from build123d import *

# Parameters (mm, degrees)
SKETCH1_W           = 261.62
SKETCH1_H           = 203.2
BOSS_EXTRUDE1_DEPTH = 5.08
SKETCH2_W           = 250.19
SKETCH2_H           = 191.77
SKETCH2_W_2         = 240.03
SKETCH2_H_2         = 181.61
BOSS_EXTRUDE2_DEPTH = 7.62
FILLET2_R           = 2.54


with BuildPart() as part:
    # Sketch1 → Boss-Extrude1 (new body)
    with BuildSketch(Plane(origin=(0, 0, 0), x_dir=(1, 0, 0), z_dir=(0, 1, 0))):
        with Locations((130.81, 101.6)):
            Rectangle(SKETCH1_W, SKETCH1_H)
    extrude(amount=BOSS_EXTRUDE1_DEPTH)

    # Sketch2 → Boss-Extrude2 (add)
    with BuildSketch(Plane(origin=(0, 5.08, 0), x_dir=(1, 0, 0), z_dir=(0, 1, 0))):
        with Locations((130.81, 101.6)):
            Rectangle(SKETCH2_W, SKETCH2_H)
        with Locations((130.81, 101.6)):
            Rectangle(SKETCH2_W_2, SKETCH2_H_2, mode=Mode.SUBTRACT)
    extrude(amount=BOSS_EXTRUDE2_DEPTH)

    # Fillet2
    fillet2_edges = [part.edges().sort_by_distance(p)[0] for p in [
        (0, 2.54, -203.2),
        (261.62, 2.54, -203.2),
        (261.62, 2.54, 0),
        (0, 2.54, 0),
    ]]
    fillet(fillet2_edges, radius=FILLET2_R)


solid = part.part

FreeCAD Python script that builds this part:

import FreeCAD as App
import Part
import Sketcher
Q = App.Units.Quantity


def edges_at(feature, points):
    """Names of the edges that pass closest to the given points."""
    edges = feature.Shape.Edges
    near = lambda p: min(range(len(edges)), key=lambda i: edges[i].distToShape(Part.Vertex(*p))[0])
    return sorted({f"Edge{near(p) + 1}" for p in points})

doc = App.newDocument("Part")
params = doc.addObject("Spreadsheet::Sheet", "Params")
for row, (alias, value) in enumerate([
    ("sketch1_height", "8 in"),
    ("sketch1_width", "10.3 in"),
    ("pad1_length", "0.2 in"),
    ("sketch2_width", "9.85 in"),
    ("sketch2_width2", "9.45 in"),
    ("sketch2_height", "7.55 in"),
    ("sketch2_height2", "7.15 in"),
    ("pad2_length", "0.3 in"),
    ("fillet_radius", "0.1 in"),
], start=1):
    params.set(f"A{row}", alias)
    params.set(f"B{row}", "=" + value)
    params.setAlias(f"B{row}", alias)

body = doc.addObject("PartDesign::Body", "Body")

# Sketch on XZ plane
sketch1 = body.newObject("Sketcher::SketchObject", "Sketch")
sketch1.AttachmentSupport = (doc.getObject("XZ_Plane"), [""])
sketch1.MapMode = "FlatFace"
sketch1.addGeometry(Part.LineSegment(App.Vector(0, -203, 0), App.Vector(0, 0, 0)), False)
sketch1.addGeometry(Part.LineSegment(App.Vector(0, 0, 0), App.Vector(262, 0, 0)), False)
sketch1.addGeometry(Part.LineSegment(App.Vector(262, 0, 0), App.Vector(262, -203, 0)), False)
sketch1.addGeometry(Part.LineSegment(App.Vector(262, -203, 0), App.Vector(0, -203, 0)), False)
sketch1.addConstraint(Sketcher.Constraint("Coincident", 0, 2, 1, 1))
sketch1.addConstraint(Sketcher.Constraint("Coincident", 1, 2, 2, 1))
sketch1.addConstraint(Sketcher.Constraint("Coincident", 2, 2, 3, 1))
sketch1.addConstraint(Sketcher.Constraint("Coincident", 3, 2, 0, 1))
sketch1.addConstraint(Sketcher.Constraint("Vertical", 0))
sketch1.addConstraint(Sketcher.Constraint("Horizontal", 1))
sketch1.addConstraint(Sketcher.Constraint("Vertical", 2))
sketch1.addConstraint(Sketcher.Constraint("Horizontal", 3))
sketch1.addConstraint(Sketcher.Constraint("Coincident", 0, 2, -1, 1))
sketch1.addConstraint(Sketcher.Constraint("DistanceY", 0, 1, 0, 2, Q("8 in")))
sketch1.addConstraint(Sketcher.Constraint("DistanceX", 1, 1, 1, 2, Q("10.3 in")))
sketch1.setExpression("Constraints[9]", "Params.sketch1_height")
sketch1.setExpression("Constraints[10]", "Params.sketch1_width")
pad1 = body.newObject("PartDesign::Pad", "Pad")
pad1.Profile = sketch1
pad1.setExpression("Length", "Params.pad1_length")
pad1.Reversed = True

# Sketch on XZ plane
sketch2 = body.newObject("Sketcher::SketchObject", "Sketch001")
sketch2.AttachmentSupport = (doc.getObject("XZ_Plane"), [""])
sketch2.MapMode = "FlatFace"
sketch2.AttachmentOffset = App.Placement(App.Vector(0, 0, -0.2 * 25.4), App.Rotation())
sketch2.addGeometry(Part.LineSegment(App.Vector(6, -197, 0), App.Vector(6, -6, 0)), False)
sketch2.addGeometry(Part.LineSegment(App.Vector(6, -6, 0), App.Vector(256, -6, 0)), False)
sketch2.addGeometry(Part.LineSegment(App.Vector(256, -6, 0), App.Vector(256, -197, 0)), False)
sketch2.addGeometry(Part.LineSegment(App.Vector(256, -197, 0), App.Vector(6, -197, 0)), False)
sketch2.addGeometry(Part.LineSegment(App.Vector(251, -11, 0), App.Vector(11, -11, 0)), False)
sketch2.addGeometry(Part.LineSegment(App.Vector(11, -11, 0), App.Vector(11, -192, 0)), False)
sketch2.addGeometry(Part.LineSegment(App.Vector(11, -192, 0), App.Vector(251, -192, 0)), False)
sketch2.addGeometry(Part.LineSegment(App.Vector(251, -192, 0), App.Vector(251, -11, 0)), False)
sketch2.addConstraint(Sketcher.Constraint("Coincident", 0, 2, 1, 1))
sketch2.addConstraint(Sketcher.Constraint("Coincident", 1, 2, 2, 1))
sketch2.addConstraint(Sketcher.Constraint("Coincident", 2, 2, 3, 1))
sketch2.addConstraint(Sketcher.Constraint("Coincident", 3, 2, 0, 1))
sketch2.addConstraint(Sketcher.Constraint("Coincident", 4, 2, 5, 1))
sketch2.addConstraint(Sketcher.Constraint("Coincident", 5, 2, 6, 1))
sketch2.addConstraint(Sketcher.Constraint("Coincident", 6, 2, 7, 1))
sketch2.addConstraint(Sketcher.Constraint("Coincident", 7, 2, 4, 1))
sketch2.addConstraint(Sketcher.Constraint("Vertical", 0))
sketch2.addConstraint(Sketcher.Constraint("Horizontal", 1))
sketch2.addConstraint(Sketcher.Constraint("Vertical", 2))
sketch2.addConstraint(Sketcher.Constraint("Horizontal", 3))
sketch2.addConstraint(Sketcher.Constraint("Horizontal", 4))
sketch2.addConstraint(Sketcher.Constraint("Vertical", 5))
sketch2.addConstraint(Sketcher.Constraint("Horizontal", 6))
sketch2.addConstraint(Sketcher.Constraint("Vertical", 7))
sketch2.addConstraint(Sketcher.Constraint("DistanceX", 1, 1, 1, 2, Q("9.85 in")))
sketch2.addConstraint(Sketcher.Constraint("DistanceX", 4, 2, 4, 1, Q("9.45 in")))
sketch2.addConstraint(Sketcher.Constraint("DistanceY", 0, 1, 0, 2, Q("7.55 in")))
sketch2.addConstraint(Sketcher.Constraint("DistanceY", 5, 2, 5, 1, Q("7.15 in")))
sketch2.addConstraint(Sketcher.Constraint("DistanceX", 0, 2, 4, 2, Q("0.2 in")))
sketch2.addConstraint(Sketcher.Constraint("DistanceY", 4, 2, 0, 2, Q("0.2 in")))
sketch2.addConstraint(Sketcher.Constraint("DistanceX", -1, 1, 0, 2, Q("0.225 in")))
sketch2.addConstraint(Sketcher.Constraint("DistanceY", 0, 2, -1, 1, Q("0.225 in")))
sketch2.setExpression("Constraints[16]", "Params.sketch2_width")
sketch2.setExpression("Constraints[17]", "Params.sketch2_width2")
sketch2.setExpression("Constraints[18]", "Params.sketch2_height")
sketch2.setExpression("Constraints[19]", "Params.sketch2_height2")
pad2 = body.newObject("PartDesign::Pad", "Pad001")
pad2.Profile = sketch2
pad2.setExpression("Length", "Params.pad2_length")
pad2.Reversed = True
doc.recompute()

fillet = body.newObject("PartDesign::Fillet", "Fillet")
fillet.Base = (pad2, edges_at(pad2, [
    (0, 2.54, -203.2),
    (261.62, 2.54, -203.2),
    (261.62, 2.54, 0),
    (0, 2.54, 0),
]))
fillet.setExpression("Radius", "Params.fillet_radius")

doc.recompute()
